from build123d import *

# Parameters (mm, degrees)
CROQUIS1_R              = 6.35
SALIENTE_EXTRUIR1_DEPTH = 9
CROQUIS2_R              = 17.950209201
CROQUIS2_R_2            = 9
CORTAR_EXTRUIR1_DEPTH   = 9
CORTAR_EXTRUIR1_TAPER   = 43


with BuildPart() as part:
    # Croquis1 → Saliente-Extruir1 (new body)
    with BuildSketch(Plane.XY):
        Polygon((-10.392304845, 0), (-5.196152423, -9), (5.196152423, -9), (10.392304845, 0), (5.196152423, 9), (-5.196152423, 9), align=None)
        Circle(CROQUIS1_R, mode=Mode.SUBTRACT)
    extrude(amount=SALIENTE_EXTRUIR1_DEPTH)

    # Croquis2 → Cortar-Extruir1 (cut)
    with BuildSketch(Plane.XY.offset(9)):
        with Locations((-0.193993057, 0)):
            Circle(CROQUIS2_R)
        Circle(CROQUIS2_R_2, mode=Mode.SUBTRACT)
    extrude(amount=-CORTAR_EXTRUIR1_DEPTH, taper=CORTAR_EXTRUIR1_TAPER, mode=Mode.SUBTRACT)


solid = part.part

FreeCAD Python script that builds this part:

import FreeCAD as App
import Part
import Sketcher
Q = App.Units.Quantity


def add_polygon(sketch, points):
    """Adds a closed chain of lines whose ends are joined by coincident constraints."""
    first, n = sketch.GeometryCount, len(points)
    for a, b in zip(points, points[1:] + points[:1]):
        sketch.addGeometry(Part.LineSegment(App.Vector(*a, 0), App.Vector(*b, 0)), False)
    for i in range(n):
        sketch.addConstraint(Sketcher.Constraint("Coincident", first + i, 2, first + (i + 1) % n, 1))

doc = App.newDocument("Part")
body = doc.addObject("PartDesign::Body", "Body")

sketch1 = body.newObject("Sketcher::SketchObject", "Sketch")
sketch1.AttachmentSupport = (doc.getObject("XY_Plane"), [""])
sketch1.MapMode = "FlatFace"
add_polygon(sketch1, [(-10, 0), (-5, -9), (5, -9), (10, 0), (5, 9), (-5, 9)])
sketch1.addGeometry(Part.Circle(App.Vector(0, 0, 0), App.Vector(0, 0, 1), 6), False)
sketch1.addConstraint([
    Sketcher.Constraint("Horizontal", 1),
    Sketcher.Constraint("Horizontal", 4),
    Sketcher.Constraint("Coincident", 6, 3, -1, 1),
    Sketcher.Constraint("Symmetric", 0, 2, 3, 2, -1, 1),
    Sketcher.Constraint("Symmetric", 2, 2, 5, 2, -1, 1),
    Sketcher.Constraint("PointOnObject", 2, 2, -1),
    Sketcher.Constraint("Parallel", 2, 5),
    Sketcher.Constraint("Vertical", 1, 2, 3, 2),
    Sketcher.Constraint("Diameter", 6, Q("12.7 mm")),
    Sketcher.Constraint("Angle", 0, Q("-60 deg")),
    Sketcher.Constraint("DistanceY", 0, 2, -1, 1, Q("9 mm")),
    Sketcher.Constraint("DistanceX", 1, 1, 1, 2, Q("10.392305 mm")),
])
pad1 = body.newObject("PartDesign::Pad", "Pad")
pad1.Profile = sketch1
pad1.Length = 9

sketch2 = body.newObject("Sketcher::SketchObject", "Sketch001")
sketch2.AttachmentSupport = (doc.getObject("XY_Plane"), [""])
sketch2.MapMode = "FlatFace"
sketch2.AttachmentOffset = App.Placement(App.Vector(0, 0, 9), App.Rotation())
sketch2.addGeometry([
    Part.Circle(App.Vector(0, 0, 0), App.Vector(0, 0, 1), 18),
    Part.Circle(App.Vector(0, 0, 0), App.Vector(0, 0, 1), 9),
], False)
sketch2.addConstraint([
    Sketcher.Constraint("Coincident", 1, 3, -1, 1),
    Sketcher.Constraint("PointOnObject", 0, 3, -1),
    Sketcher.Constraint("Diameter", 1, Q("18 mm")),
    Sketcher.Constraint("Diameter", 0, Q("35.900418 mm")),
    Sketcher.Constraint("DistanceX", 0, 3, -1, 1, Q("0.193993 mm")),
])
pocket1 = body.newObject("PartDesign::Pocket", "Pocket")
pocket1.Profile = sketch2
pocket1.Length = 9
pocket1.TaperAngle = 43

doc.recompute()
